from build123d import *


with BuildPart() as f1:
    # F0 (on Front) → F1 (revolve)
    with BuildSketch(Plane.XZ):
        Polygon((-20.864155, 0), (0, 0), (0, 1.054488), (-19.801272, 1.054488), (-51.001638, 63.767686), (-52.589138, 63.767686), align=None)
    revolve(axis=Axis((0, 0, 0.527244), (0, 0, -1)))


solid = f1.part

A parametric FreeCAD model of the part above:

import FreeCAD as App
import Part
import Sketcher
Q = App.Units.Quantity

doc = App.newDocument("Part")
body = doc.addObject("PartDesign::Body", "Body")

sketch1 = body.newObject("Sketcher::SketchObject", "Sketch")
sketch1.AttachmentSupport = (doc.getObject("XZ_Plane"), [""])
sketch1.MapMode = "FlatFace"
sketch1.addGeometry([
    Part.LineSegment(App.Vector(-20.9, 0, 0), App.Vector(0, 0, 0)),
    Part.LineSegment(App.Vector(0, 0, 0), App.Vector(0, 1.1, 0)),
    Part.LineSegment(App.Vector(0, 1.1, 0), App.Vector(-19.8, 1.1, 0)),
    Part.LineSegment(App.Vector(-19.8, 1.1, 0), App.Vector(-51, 63.8, 0)),
    Part.LineSegment(App.Vector(-51, 63.8, 0), App.Vector(-52.6, 63.8, 0)),
    Part.LineSegment(App.Vector(-52.6, 63.8, 0), App.Vector(-20.9, 0, 0)),
], False)
sketch1.addConstraint([
    Sketcher.Constraint("Coincident", 0, 2, 1, 1),
    Sketcher.Constraint("Coincident", 1, 2, 2, 1),
    Sketcher.Constraint("Coincident", 2, 2, 3, 1),
    Sketcher.Constraint("Coincident", 3, 2, 4, 1),
    Sketcher.Constraint("Coincident", 4, 2, 5, 1),
    Sketcher.Constraint("Coincident", 5, 2, 0, 1),
    Sketcher.Constraint("Horizontal", 0),
    Sketcher.Constraint("Vertical", 1),
    Sketcher.Constraint("Horizontal", 2),
    Sketcher.Constraint("Horizontal", 4),
    Sketcher.Constraint("Coincident", 0, 2, -1, 1),
    Sketcher.Constraint("Parallel", 3, 5),
    Sketcher.Constraint("DistanceX", 4, 2, 4, 1, Q("0.0625 in")),
    Sketcher.Constraint("DistanceY", 1, 1, 1, 2, 1.054488),
    Sketcher.Constraint("DistanceX", 0, 1, 0, 2, 20.864155),
    Sketcher.Constraint("DistanceX", 2, 2, 2, 1, 19.801272),
    Sketcher.Constraint("Distance", 3, 70.045757),
])
revolution = body.newObject("PartDesign::Revolution", "Revolution")
revolution.Profile = sketch1
revolution.ReferenceAxis = (sketch1, ["V_Axis"])
revolution.Angle = 360

doc.recompute()
